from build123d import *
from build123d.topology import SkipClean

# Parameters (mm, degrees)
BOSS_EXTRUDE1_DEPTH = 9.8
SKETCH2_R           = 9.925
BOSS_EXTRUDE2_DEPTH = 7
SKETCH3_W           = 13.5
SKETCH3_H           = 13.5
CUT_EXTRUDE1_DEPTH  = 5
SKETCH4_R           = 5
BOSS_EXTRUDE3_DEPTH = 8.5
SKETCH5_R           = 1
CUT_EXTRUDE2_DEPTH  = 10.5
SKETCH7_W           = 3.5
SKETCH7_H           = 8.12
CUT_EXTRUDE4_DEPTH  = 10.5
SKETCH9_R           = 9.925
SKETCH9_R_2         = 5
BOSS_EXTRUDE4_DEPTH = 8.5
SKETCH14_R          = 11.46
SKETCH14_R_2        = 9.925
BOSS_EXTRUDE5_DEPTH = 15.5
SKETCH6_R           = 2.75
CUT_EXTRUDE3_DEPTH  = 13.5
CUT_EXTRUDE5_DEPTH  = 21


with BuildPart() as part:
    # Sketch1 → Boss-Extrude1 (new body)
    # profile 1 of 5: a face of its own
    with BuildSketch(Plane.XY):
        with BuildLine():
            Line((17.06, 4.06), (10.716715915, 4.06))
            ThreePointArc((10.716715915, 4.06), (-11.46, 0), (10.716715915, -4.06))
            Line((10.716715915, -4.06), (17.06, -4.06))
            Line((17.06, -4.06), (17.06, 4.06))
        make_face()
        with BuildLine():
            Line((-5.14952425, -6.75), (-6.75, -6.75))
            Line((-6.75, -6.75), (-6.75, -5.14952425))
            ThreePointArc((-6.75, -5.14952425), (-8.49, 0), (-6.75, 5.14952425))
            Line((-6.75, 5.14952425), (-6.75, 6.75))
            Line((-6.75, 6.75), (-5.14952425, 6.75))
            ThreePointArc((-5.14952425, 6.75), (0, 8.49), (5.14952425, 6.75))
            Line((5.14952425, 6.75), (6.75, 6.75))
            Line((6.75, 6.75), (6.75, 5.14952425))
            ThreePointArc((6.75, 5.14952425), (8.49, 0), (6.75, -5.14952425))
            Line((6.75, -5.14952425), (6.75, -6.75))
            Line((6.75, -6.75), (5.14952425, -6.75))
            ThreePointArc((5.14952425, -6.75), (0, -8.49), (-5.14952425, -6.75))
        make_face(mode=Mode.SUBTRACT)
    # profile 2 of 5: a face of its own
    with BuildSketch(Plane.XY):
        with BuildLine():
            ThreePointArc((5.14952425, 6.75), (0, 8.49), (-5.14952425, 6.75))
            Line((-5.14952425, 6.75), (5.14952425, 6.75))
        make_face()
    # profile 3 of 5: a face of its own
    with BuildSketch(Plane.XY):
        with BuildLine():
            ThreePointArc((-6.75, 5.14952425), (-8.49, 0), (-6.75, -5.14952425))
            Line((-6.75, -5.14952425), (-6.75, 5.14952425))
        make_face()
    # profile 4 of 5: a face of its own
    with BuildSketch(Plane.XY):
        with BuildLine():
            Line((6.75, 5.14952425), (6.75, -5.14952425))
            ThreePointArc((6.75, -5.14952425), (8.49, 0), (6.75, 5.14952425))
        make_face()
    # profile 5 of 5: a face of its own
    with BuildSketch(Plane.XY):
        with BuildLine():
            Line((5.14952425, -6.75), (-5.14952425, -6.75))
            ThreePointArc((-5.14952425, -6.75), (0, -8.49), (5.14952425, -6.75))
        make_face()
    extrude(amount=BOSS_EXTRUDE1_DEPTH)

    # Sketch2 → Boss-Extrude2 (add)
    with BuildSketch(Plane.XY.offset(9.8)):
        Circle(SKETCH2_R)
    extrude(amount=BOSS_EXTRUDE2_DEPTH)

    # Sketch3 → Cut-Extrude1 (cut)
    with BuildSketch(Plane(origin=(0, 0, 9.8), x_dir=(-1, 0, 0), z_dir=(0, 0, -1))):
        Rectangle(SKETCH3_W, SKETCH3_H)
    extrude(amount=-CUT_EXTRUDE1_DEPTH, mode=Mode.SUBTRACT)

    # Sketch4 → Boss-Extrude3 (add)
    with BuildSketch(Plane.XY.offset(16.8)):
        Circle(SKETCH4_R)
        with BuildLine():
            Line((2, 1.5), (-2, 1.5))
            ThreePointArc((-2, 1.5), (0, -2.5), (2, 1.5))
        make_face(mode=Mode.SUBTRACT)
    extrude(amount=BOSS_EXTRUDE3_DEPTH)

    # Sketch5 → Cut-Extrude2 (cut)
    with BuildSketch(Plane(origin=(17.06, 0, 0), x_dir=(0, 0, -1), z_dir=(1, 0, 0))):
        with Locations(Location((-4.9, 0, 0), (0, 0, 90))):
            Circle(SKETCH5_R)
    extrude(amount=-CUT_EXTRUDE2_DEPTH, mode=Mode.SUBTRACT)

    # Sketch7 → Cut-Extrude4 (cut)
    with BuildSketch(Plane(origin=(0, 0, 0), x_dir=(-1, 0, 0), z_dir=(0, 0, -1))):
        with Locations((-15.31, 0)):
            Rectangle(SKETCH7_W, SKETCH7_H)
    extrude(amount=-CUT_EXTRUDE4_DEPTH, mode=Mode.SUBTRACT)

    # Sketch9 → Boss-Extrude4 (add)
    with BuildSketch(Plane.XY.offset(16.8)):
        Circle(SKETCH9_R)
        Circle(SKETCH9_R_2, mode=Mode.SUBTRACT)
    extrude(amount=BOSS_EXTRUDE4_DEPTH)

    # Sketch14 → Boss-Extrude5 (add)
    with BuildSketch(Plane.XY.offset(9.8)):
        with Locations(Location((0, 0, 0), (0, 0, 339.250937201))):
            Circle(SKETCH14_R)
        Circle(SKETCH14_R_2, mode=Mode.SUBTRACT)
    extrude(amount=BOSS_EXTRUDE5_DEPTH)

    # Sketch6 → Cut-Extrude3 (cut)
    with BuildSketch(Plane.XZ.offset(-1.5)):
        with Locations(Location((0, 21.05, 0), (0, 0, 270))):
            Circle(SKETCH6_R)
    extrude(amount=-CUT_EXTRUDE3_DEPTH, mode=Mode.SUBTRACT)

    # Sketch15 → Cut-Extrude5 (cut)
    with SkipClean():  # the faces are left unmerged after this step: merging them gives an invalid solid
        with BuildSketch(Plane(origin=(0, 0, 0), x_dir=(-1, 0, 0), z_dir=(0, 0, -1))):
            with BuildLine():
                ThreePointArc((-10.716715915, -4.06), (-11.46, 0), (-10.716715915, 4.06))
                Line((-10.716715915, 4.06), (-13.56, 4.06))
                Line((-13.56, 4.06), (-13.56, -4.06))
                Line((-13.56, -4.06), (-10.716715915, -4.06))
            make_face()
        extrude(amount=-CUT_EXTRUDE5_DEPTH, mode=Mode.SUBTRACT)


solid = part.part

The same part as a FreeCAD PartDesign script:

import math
import FreeCAD as App
import Part
import Sketcher

V = App.Vector
Q = App.Units.Quantity

doc = App.newDocument("Part")
body = doc.addObject("PartDesign::Body", "Body")

# Sketch on XY plane
sketch1 = doc.addObject("Sketcher::SketchObject", "Sketch")
body.addObject(sketch1)
sketch1.AttachmentSupport = (doc.XY_Plane, [""])
sketch1.MapMode = "FlatFace"
sketch1.addGeometry(Part.LineSegment(V(17, 4, 0), V(11, 4, 0)), False)
sketch1.addGeometry(Part.ArcOfCircle(Part.Circle(V(0, 0, 0), V(0, 0, 1), 11), math.radians(21), math.radians(339)), False)
sketch1.addGeometry(Part.LineSegment(V(11, -4, 0), V(17, -4, 0)), False)
sketch1.addGeometry(Part.LineSegment(V(17, -4, 0), V(17, 4, 0)), False)
sketch1.addGeometry(Part.LineSegment(V(7, -7, 0), V(-7, -7, 0)), False)
sketch1.addGeometry(Part.LineSegment(V(-7, -7, 0), V(-7, 7, 0)), False)
sketch1.addGeometry(Part.LineSegment(V(-7, 7, 0), V(7, 7, 0)), False)
sketch1.addGeometry(Part.LineSegment(V(7, 7, 0), V(7, -7, 0)), False)
sketch1.addConstraint(Sketcher.Constraint("Coincident", 0, 2, 1, 1))
sketch1.addConstraint(Sketcher.Constraint("Coincident", 1, 2, 2, 1))
sketch1.addConstraint(Sketcher.Constraint("Coincident", 2, 2, 3, 1))
sketch1.addConstraint(Sketcher.Constraint("Coincident", 3, 2, 0, 1))
sketch1.addConstraint(Sketcher.Constraint("Coincident", 4, 2, 5, 1))
sketch1.addConstraint(Sketcher.Constraint("Coincident", 5, 2, 6, 1))
sketch1.addConstraint(Sketcher.Constraint("Coincident", 6, 2, 7, 1))
sketch1.addConstraint(Sketcher.Constraint("Coincident", 7, 2, 4, 1))
sketch1.addConstraint(Sketcher.Constraint("Horizontal", 0))
sketch1.addConstraint(Sketcher.Constraint("Horizontal", 2))
sketch1.addConstraint(Sketcher.Constraint("Vertical", 3))
sketch1.addConstraint(Sketcher.Constraint("Horizontal", 4))
sketch1.addConstraint(Sketcher.Constraint("Vertical", 5))
sketch1.addConstraint(Sketcher.Constraint("Horizontal", 6))
sketch1.addConstraint(Sketcher.Constraint("Vertical", 7))
sketch1.addConstraint(Sketcher.Constraint("Coincident", 1, 3, -1, 1))
sketch1.addConstraint(Sketcher.Constraint("Symmetric", 4, 2, 6, 2, -1, 1))
sketch1.addConstraint(Sketcher.Constraint("Vertical", 0, 2, 1, 2))
sketch1.addConstraint(Sketcher.Constraint("Equal", 6, 5))
sketch1.addConstraint(Sketcher.Constraint("Radius", 1, Q("11.46 mm")))
sketch1.addConstraint(Sketcher.Constraint("DistanceX", 4, 2, 4, 1, Q("13.5 mm")))
sketch1.addConstraint(Sketcher.Constraint("DistanceY", 3, 1, 3, 2, Q("8.12 mm")))
sketch1.addConstraint(Sketcher.Constraint("DistanceX", -1, 1, 2, 2, Q("17.06 mm")))
pad1 = doc.addObject("PartDesign::Pad", "Pad")
body.addObject(pad1)
pad1.Profile = sketch1
pad1.Length = 9.8

# Sketch on XY plane
sketch2 = doc.addObject("Sketcher::SketchObject", "Sketch001")
body.addObject(sketch2)
sketch2.AttachmentSupport = (doc.XY_Plane, [""])
sketch2.MapMode = "FlatFace"
sketch2.AttachmentOffset = App.Placement(V(0, 0, 9.8), App.Rotation())
sketch2.addGeometry(Part.Circle(V(0, 0, 0), V(0, 0, 1), 10), False)
sketch2.addConstraint(Sketcher.Constraint("Coincident", 0, 3, -1, 1))
sketch2.addConstraint(Sketcher.Constraint("Diameter", 0, Q("19.85 mm")))
pad2 = doc.addObject("PartDesign::Pad", "Pad001")
body.addObject(pad2)
pad2.Profile = sketch2
pad2.Length = 7

# Sketch on XY plane
sketch3 = doc.addObject("Sketcher::SketchObject", "Sketch002")
body.addObject(sketch3)
sketch3.AttachmentSupport = (doc.XY_Plane, [""])
sketch3.MapMode = "FlatFace"
sketch3.AttachmentOffset = App.Placement(V(0, 0, 9.8), App.Rotation())
sketch3.addGeometry(Part.LineSegment(V(7, 7, 0), V(7, -7, 0)), False)
sketch3.addGeometry(Part.LineSegment(V(7, -7, 0), V(-7, -7, 0)), False)
sketch3.addGeometry(Part.LineSegment(V(-7, -7, 0), V(-7, 7, 0)), False)
sketch3.addGeometry(Part.LineSegment(V(-7, 7, 0), V(7, 7, 0)), False)
sketch3.addConstraint(Sketcher.Constraint("Coincident", 0, 2, 1, 1))
sketch3.addConstraint(Sketcher.Constraint("Coincident", 1, 2, 2, 1))
sketch3.addConstraint(Sketcher.Constraint("Coincident", 2, 2, 3, 1))
sketch3.addConstraint(Sketcher.Constraint("Coincident", 3, 2, 0, 1))
sketch3.addConstraint(Sketcher.Constraint("Vertical", 0))
sketch3.addConstraint(Sketcher.Constraint("Horizontal", 1))
sketch3.addConstraint(Sketcher.Constraint("Vertical", 2))
sketch3.addConstraint(Sketcher.Constraint("Horizontal", 3))
sketch3.addConstraint(Sketcher.Constraint("Symmetric", 0, 2, 2, 2, -1, 1))
sketch3.addConstraint(Sketcher.Constraint("Equal", 3, 0))
sketch3.addConstraint(Sketcher.Constraint("DistanceX", 1, 2, 1, 1, Q("13.5 mm")))
pocket1 = doc.addObject("PartDesign::Pocket", "Pocket")
body.addObject(pocket1)
pocket1.Profile = sketch3
pocket1.Length = 5
pocket1.Reversed = True

# Sketch on XY plane
sketch4 = doc.addObject("Sketcher::SketchObject", "Sketch003")
body.addObject(sketch4)
sketch4.AttachmentSupport = (doc.XY_Plane, [""])
sketch4.MapMode = "FlatFace"
sketch4.AttachmentOffset = App.Placement(V(0, 0, 16.8), App.Rotation())
sketch4.addGeometry(Part.Circle(V(0, 0, 0), V(0, 0, 1), 5), False)
sketch4.addGeometry(Part.LineSegment(V(-2, 1.5, 0), V(2, 1.5, 0)), False)
sketch4.addGeometry(Part.ArcOfCircle(Part.Circle(V(0, 0, 0), V(0, 0, 1), 2.5), math.radians(143), math.radians(397)), False)
sketch4.addConstraint(Sketcher.Constraint("Coincident", 1, 1, 2, 1))
sketch4.addConstraint(Sketcher.Constraint("Coincident", 2, 2, 1, 2))
sketch4.addConstraint(Sketcher.Constraint("Horizontal", 1))
sketch4.addConstraint(Sketcher.Constraint("Coincident", 0, 3, -1, 1))
sketch4.addConstraint(Sketcher.Constraint("Coincident", 2, 3, -1, 1))
sketch4.addConstraint(Sketcher.Constraint("Diameter", 0, Q("10 mm")))
sketch4.addConstraint(Sketcher.Constraint("Radius", 2, Q("2.5 mm")))
sketch4.addConstraint(Sketcher.Constraint("DistanceX", 1, 1, 1, 2, Q("4 mm")))
pad3 = doc.addObject("PartDesign::Pad", "Pad002")
body.addObject(pad3)
pad3.Profile = sketch4
pad3.Length = 8.5

# Sketch on YZ plane
sketch5 = doc.addObject("Sketcher::SketchObject", "Sketch004")
body.addObject(sketch5)
sketch5.AttachmentSupport = (doc.YZ_Plane, [""])
sketch5.MapMode = "FlatFace"
sketch5.AttachmentOffset = App.Placement(V(0, 0, 17.06), App.Rotation())
sketch5.addGeometry(Part.Circle(V(0, 4.9, 0), V(0, 0, 1), 1), False)
sketch5.addConstraint(Sketcher.Constraint("PointOnObject", 0, 3, -2))
sketch5.addConstraint(Sketcher.Constraint("Diameter", 0, Q("2 mm")))
sketch5.addConstraint(Sketcher.Constraint("DistanceY", -1, 1, 0, 3, Q("4.9 mm")))
pocket2 = doc.addObject("PartDesign::Pocket", "Pocket001")
body.addObject(pocket2)
pocket2.Profile = sketch5
pocket2.Length = 10.5

# Sketch on XY plane
sketch6 = doc.addObject("Sketcher::SketchObject", "Sketch005")
body.addObject(sketch6)
sketch6.AttachmentSupport = (doc.XY_Plane, [""])
sketch6.MapMode = "FlatFace"
sketch6.addGeometry(Part.LineSegment(V(17.1, 4.1, 0), V(17.1, -4.1, 0)), False)
sketch6.addGeometry(Part.LineSegment(V(17.1, -4.1, 0), V(13.6, -4.1, 0)), False)
sketch6.addGeometry(Part.LineSegment(V(13.6, -4.1, 0), V(13.6, 4.1, 0)), False)
sketch6.addGeometry(Part.LineSegment(V(13.6, 4.1, 0), V(17.1, 4.1, 0)), False)
sketch6.addConstraint(Sketcher.Constraint("Coincident", 0, 2, 1, 1))
sketch6.addConstraint(Sketcher.Constraint("Coincident", 1, 2, 2, 1))
sketch6.addConstraint(Sketcher.Constraint("Coincident", 2, 2, 3, 1))
sketch6.addConstraint(Sketcher.Constraint("Coincident", 3, 2, 0, 1))
sketch6.addConstraint(Sketcher.Constraint("Vertical", 0))
sketch6.addConstraint(Sketcher.Constraint("Horizontal", 1))
sketch6.addConstraint(Sketcher.Constraint("Vertical", 2))
sketch6.addConstraint(Sketcher.Constraint("Horizontal", 3))
sketch6.addConstraint(Sketcher.Constraint("DistanceX", 1, 2, 1, 1, Q("3.5 mm")))
sketch6.addConstraint(Sketcher.Constraint("DistanceY", 0, 2, 0, 1, Q("8.12 mm")))
sketch6.addConstraint(Sketcher.Constraint("DistanceX", -1, 1, 0, 2, Q("17.06 mm")))
sketch6.addConstraint(Sketcher.Constraint("DistanceY", 0, 2, -1, 1, Q("4.06 mm")))
pocket3 = doc.addObject("PartDesign::Pocket", "Pocket002")
body.addObject(pocket3)
pocket3.Profile = sketch6
pocket3.Length = 10.5
pocket3.Reversed = True

# Sketch on XY plane
sketch7 = doc.addObject("Sketcher::SketchObject", "Sketch006")
body.addObject(sketch7)
sketch7.AttachmentSupport = (doc.XY_Plane, [""])
sketch7.MapMode = "FlatFace"
sketch7.AttachmentOffset = App.Placement(V(0, 0, 16.8), App.Rotation())
sketch7.addGeometry(Part.Circle(V(0, 0, 0), V(0, 0, 1), 10), False)
sketch7.addGeometry(Part.Circle(V(0, 0, 0), V(0, 0, 1), 5), False)
sketch7.addConstraint(Sketcher.Constraint("Coincident", 0, 3, -1, 1))
sketch7.addConstraint(Sketcher.Constraint("Coincident", 1, 3, -1, 1))
sketch7.addConstraint(Sketcher.Constraint("Diameter", 1, Q("10 mm")))
sketch7.addConstraint(Sketcher.Constraint("Diameter", 0, Q("19.85 mm")))
pad4 = doc.addObject("PartDesign::Pad", "Pad003")
body.addObject(pad4)
pad4.Profile = sketch7
pad4.Length = 8.5

# Sketch on XY plane
sketch8 = doc.addObject("Sketcher::SketchObject", "Sketch007")
body.addObject(sketch8)
sketch8.AttachmentSupport = (doc.XY_Plane, [""])
sketch8.MapMode = "FlatFace"
sketch8.AttachmentOffset = App.Placement(V(0, 0, 9.8), App.Rotation())
sketch8.addGeometry(Part.Circle(V(0, 0, 0), V(0, 0, 1), 11), False)
sketch8.addGeometry(Part.Circle(V(0, 0, 0), V(0, 0, 1), 10), False)
sketch8.addConstraint(Sketcher.Constraint("Coincident", 0, 3, -1, 1))
sketch8.addConstraint(Sketcher.Constraint("Coincident", 1, 3, -1, 1))
sketch8.addConstraint(Sketcher.Constraint("Diameter", 0, Q("22.92 mm")))
sketch8.addConstraint(Sketcher.Constraint("Diameter", 1, Q("19.85 mm")))
pad5 = doc.addObject("PartDesign::Pad", "Pad004")
body.addObject(pad5)
pad5.Profile = sketch8
pad5.Length = 15.5

# Sketch on XZ plane
sketch9 = doc.addObject("Sketcher::SketchObject", "Sketch008")
body.addObject(sketch9)
sketch9.AttachmentSupport = (doc.XZ_Plane, [""])
sketch9.MapMode = "FlatFace"
sketch9.AttachmentOffset = App.Placement(V(0, 0, -1.5), App.Rotation())
sketch9.addGeometry(Part.Circle(V(0, 21.1, 0), V(0, 0, 1), 2.8), False)
sketch9.addConstraint(Sketcher.Constraint("PointOnObject", 0, 3, -2))
sketch9.addConstraint(Sketcher.Constraint("Diameter", 0, Q("5.5 mm")))
sketch9.addConstraint(Sketcher.Constraint("DistanceY", -1, 1, 0, 3, Q("21.05 mm")))
pocket4 = doc.addObject("PartDesign::Pocket", "Pocket003")
body.addObject(pocket4)
pocket4.Profile = sketch9
pocket4.Length = 13.5

# Sketch on XY plane
sketch10 = doc.addObject("Sketcher::SketchObject", "Sketch009")
body.addObject(sketch10)
sketch10.AttachmentSupport = (doc.XY_Plane, [""])
sketch10.MapMode = "FlatFace"
sketch10.addGeometry(Part.ArcOfCircle(Part.Circle(V(0, 0, 0), V(0, 0, 1), 11.5), math.radians(-21), math.radians(21)), False)
sketch10.addGeometry(Part.LineSegment(V(10.7, 4.1, 0), V(13.6, 4.1, 0)), False)
sketch10.addGeometry(Part.LineSegment(V(13.6, 4.1, 0), V(13.6, -4.1, 0)), False)
sketch10.addGeometry(Part.LineSegment(V(13.6, -4.1, 0), V(10.7, -4.1, 0)), False)
sketch10.addConstraint(Sketcher.Constraint("Coincident", 0, 2, 1, 1))
sketch10.addConstraint(Sketcher.Constraint("Coincident", 1, 2, 2, 1))
sketch10.addConstraint(Sketcher.Constraint("Coincident", 2, 2, 3, 1))
sketch10.addConstraint(Sketcher.Constraint("Coincident", 3, 2, 0, 1))
sketch10.addConstraint(Sketcher.Constraint("Horizontal", 1))
sketch10.addConstraint(Sketcher.Constraint("Vertical", 2))
sketch10.addConstraint(Sketcher.Constraint("Horizontal", 3))
sketch10.addConstraint(Sketcher.Constraint("Coincident", 0, 3, -1, 1))
sketch10.addConstraint(Sketcher.Constraint("Vertical", 0, 2, 3, 2))
sketch10.addConstraint(Sketcher.Constraint("Radius", 0, Q("11.46 mm")))
sketch10.addConstraint(Sketcher.Constraint("DistanceY", 2, 2, 2, 1, Q("8.12 mm")))
sketch10.addConstraint(Sketcher.Constraint("DistanceX", -1, 1, 1, 2, Q("13.56 mm")))
pocket5 = doc.addObject("PartDesign::Pocket", "Pocket004")
body.addObject(pocket5)
pocket5.Profile = sketch10
pocket5.Length = 21
pocket5.Reversed = True

doc.recompute()
